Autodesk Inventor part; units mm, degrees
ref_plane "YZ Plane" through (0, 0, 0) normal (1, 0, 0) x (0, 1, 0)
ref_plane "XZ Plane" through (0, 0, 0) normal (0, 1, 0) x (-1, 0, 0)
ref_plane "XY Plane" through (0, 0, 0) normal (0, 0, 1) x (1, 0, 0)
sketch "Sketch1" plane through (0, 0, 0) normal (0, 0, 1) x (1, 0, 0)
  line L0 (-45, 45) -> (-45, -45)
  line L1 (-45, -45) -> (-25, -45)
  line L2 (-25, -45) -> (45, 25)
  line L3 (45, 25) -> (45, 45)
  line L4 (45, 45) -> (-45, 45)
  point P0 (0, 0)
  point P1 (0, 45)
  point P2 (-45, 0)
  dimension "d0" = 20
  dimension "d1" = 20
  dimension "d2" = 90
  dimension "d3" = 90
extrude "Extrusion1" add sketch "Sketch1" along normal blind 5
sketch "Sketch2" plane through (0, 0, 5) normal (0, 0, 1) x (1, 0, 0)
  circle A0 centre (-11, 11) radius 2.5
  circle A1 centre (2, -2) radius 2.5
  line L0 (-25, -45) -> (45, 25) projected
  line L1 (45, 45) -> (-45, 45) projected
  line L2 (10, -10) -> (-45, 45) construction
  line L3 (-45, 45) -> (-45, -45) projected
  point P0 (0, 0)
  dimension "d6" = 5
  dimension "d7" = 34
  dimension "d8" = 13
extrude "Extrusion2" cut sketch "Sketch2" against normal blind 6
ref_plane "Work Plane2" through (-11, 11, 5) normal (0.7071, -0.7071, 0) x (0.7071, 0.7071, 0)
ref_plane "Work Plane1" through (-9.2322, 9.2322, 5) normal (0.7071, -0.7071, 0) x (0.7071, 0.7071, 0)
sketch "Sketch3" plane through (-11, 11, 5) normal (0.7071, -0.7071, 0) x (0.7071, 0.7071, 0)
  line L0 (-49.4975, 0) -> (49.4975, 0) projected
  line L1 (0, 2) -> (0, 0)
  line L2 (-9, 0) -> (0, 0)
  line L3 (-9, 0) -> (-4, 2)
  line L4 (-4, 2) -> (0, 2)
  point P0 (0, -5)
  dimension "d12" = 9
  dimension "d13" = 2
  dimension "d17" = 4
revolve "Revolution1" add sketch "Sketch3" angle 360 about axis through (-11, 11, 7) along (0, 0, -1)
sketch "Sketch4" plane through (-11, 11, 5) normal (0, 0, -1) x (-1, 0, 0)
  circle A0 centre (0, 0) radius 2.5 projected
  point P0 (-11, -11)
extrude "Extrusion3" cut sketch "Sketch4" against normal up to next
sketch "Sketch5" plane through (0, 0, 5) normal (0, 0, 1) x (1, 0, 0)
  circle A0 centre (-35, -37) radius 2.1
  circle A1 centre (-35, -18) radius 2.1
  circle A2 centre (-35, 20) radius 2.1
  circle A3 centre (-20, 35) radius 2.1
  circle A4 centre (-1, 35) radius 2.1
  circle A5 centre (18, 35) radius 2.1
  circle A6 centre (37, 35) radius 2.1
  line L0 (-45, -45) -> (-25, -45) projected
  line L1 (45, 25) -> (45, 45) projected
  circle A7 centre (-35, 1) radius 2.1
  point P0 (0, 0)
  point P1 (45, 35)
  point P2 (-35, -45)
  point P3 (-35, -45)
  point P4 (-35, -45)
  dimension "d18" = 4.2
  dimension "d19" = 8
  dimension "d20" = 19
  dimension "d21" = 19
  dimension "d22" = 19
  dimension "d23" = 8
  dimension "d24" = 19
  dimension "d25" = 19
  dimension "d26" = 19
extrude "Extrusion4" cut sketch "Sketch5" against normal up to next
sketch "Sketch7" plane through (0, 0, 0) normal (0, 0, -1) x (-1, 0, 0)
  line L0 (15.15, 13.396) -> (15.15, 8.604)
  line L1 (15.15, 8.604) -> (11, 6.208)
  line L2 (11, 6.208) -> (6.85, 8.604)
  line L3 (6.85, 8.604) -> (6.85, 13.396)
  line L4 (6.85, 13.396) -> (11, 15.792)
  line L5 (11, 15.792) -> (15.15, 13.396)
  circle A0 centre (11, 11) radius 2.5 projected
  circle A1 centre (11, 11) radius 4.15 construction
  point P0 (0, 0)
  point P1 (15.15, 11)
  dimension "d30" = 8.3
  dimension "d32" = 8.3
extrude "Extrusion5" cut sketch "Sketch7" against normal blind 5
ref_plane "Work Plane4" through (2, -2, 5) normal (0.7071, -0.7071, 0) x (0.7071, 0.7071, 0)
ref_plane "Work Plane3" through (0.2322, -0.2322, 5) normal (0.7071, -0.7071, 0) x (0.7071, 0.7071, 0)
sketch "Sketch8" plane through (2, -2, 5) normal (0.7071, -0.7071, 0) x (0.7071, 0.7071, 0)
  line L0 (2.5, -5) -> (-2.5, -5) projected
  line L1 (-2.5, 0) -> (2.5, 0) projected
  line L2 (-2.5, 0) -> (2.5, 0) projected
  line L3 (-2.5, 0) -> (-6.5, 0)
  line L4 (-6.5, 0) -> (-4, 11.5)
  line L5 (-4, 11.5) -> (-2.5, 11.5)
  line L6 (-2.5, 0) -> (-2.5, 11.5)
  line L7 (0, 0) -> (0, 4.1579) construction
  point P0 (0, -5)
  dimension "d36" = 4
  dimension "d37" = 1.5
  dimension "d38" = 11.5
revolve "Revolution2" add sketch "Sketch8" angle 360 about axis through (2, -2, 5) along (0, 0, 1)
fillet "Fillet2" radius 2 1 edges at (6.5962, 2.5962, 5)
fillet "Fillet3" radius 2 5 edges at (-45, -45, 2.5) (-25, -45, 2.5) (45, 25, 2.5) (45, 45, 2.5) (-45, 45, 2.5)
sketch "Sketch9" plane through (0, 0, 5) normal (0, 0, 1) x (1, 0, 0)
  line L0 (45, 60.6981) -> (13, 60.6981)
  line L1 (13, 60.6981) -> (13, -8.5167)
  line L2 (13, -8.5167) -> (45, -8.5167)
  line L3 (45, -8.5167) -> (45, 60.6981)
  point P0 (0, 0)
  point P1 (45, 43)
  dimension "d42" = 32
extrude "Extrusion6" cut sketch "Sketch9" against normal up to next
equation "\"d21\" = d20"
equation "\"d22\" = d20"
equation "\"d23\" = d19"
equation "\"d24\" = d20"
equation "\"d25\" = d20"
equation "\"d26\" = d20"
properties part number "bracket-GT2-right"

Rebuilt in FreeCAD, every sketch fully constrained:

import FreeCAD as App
import Part
import Sketcher
from FreeCAD import Vector
Q = App.Units.Quantity


def edges_at(feature, points):
    """Names of the edges that pass closest to the given points."""
    edges = feature.Shape.Edges
    near = lambda p: min(range(len(edges)), key=lambda i: edges[i].distToShape(Part.Vertex(*p))[0])
    return sorted({f"Edge{near(p) + 1}" for p in points})


def add_polygon(sketch, points):
    """Adds a closed chain of lines whose ends are joined by coincident constraints."""
    first, n = sketch.GeometryCount, len(points)
    for a, b in zip(points, points[1:] + points[:1]):
        sketch.addGeometry(Part.LineSegment(App.Vector(*a, 0), App.Vector(*b, 0)), False)
    for i in range(n):
        sketch.addConstraint(Sketcher.Constraint("Coincident", first + i, 2, first + (i + 1) % n, 1))

doc = App.newDocument("Part")
body = doc.addObject("PartDesign::Body", "Body")

# Sketch on XY plane
sketch1 = body.newObject("Sketcher::SketchObject", "Sketch")
sketch1.AttachmentSupport = (doc.getObject("XY_Plane"), [""])
sketch1.MapMode = "FlatFace"
add_polygon(sketch1, [(45, 45), (-45, 45), (-45, -45), (-25, -45), (45, 25)])  # lines 0-4
sketch1.addConstraint([
    Sketcher.Constraint("Horizontal", 0),
    Sketcher.Constraint("Vertical", 1),
    Sketcher.Constraint("Horizontal", 2),
    Sketcher.Constraint("Vertical", 4),
    Sketcher.Constraint("Symmetric", 1, 2, 4, 2, -1, 1),
    Sketcher.Constraint("Equal", 0, 1),
    Sketcher.Constraint("Equal", 2, 4),
    Sketcher.Constraint("DistanceX", 0, 2, 0, 1, Q("90 mm")),
    Sketcher.Constraint("DistanceX", 2, 1, 2, 2, Q("20 mm")),
])
pad1 = body.newObject("PartDesign::Pad", "Pad")
pad1.Profile = sketch1
pad1.Length = 5

# Sketch on XY plane
sketch2 = body.newObject("Sketcher::SketchObject", "Sketch001")
sketch2.AttachmentSupport = (doc.getObject("XY_Plane"), [""])
sketch2.MapMode = "FlatFace"
sketch2.AttachmentOffset = App.Placement(Vector(0, 0, 5), App.Rotation())
sketch2.addGeometry([
    Part.Circle(Vector(-11, 11, 0), Vector(0, 0, 1), 2.5),
    Part.Circle(Vector(2, -2, 0), Vector(0, 0, 1), 2.5),
], False)
sketch2.addConstraint([
    Sketcher.Constraint("Equal", 0, 1),
    Sketcher.Constraint("Diameter", 0, Q("5 mm")),
    Sketcher.Constraint("DistanceX", 0, 3, 1, 3, Q("13 mm")),
    Sketcher.Constraint("DistanceY", 1, 3, 0, 3, Q("13 mm")),
    Sketcher.Constraint("DistanceX", 0, 3, -1, 1, Q("11 mm")),
    Sketcher.Constraint("DistanceY", -1, 1, 0, 3, Q("11 mm")),
])
pocket1 = body.newObject("PartDesign::Pocket", "Pocket")
pocket1.Profile = sketch2
pocket1.Length = 6

# Sketch on an angled plane
sketch3 = body.newObject("Sketcher::SketchObject", "Sketch002")
sketch3.Placement = App.Placement(Vector(-11, 11, 5), App.Rotation(Vector(0.707106781, 0.707106781, 0), Vector(0, 0, 0.999999999), Vector(0.707106781, -0.707106781, 0), "ZXY"))
add_polygon(sketch3, [(-4, 2), (-9, 0), (0, 0), (0, 2)])  # lines 0-3
sketch3.addConstraint([
    Sketcher.Constraint("Horizontal", 1),
    Sketcher.Constraint("Vertical", 2),
    Sketcher.Constraint("Horizontal", 3),
    Sketcher.Constraint("Coincident", 1, 2, -1, 1),
    Sketcher.Constraint("DistanceX", 1, 1, 1, 2, Q("9 mm")),
    Sketcher.Constraint("DistanceX", 3, 2, 3, 1, Q("4 mm")),
    Sketcher.Constraint("DistanceY", 2, 1, 2, 2, Q("2 mm")),
])
revolution = body.newObject("PartDesign::Revolution", "Revolution")
revolution.Profile = sketch3
revolution.ReferenceAxis = (sketch3, ["V_Axis"])
revolution.Angle = 360

# Sketch on XY plane
sketch4 = body.newObject("Sketcher::SketchObject", "Sketch003")
sketch4.AttachmentSupport = (doc.getObject("XY_Plane"), [""])
sketch4.MapMode = "FlatFace"
sketch4.AttachmentOffset = App.Placement(Vector(0, 0, 5), App.Rotation())
sketch4.addGeometry(Part.Circle(Vector(-11, 11, 0), Vector(0, 0, 1), 2.5), False)
sketch4.addConstraint([
    Sketcher.Constraint("Diameter", 0, Q("5 mm")),
    Sketcher.Constraint("DistanceX", 0, 3, -1, 1, Q("11 mm")),
    Sketcher.Constraint("DistanceY", -1, 1, 0, 3, Q("11 mm")),
])
pocket2 = body.newObject("PartDesign::Pocket", "Pocket001")
pocket2.Profile = sketch4
pocket2.Type = "UpToFirst"
pocket2.Reversed = True

# Sketch on XY plane
sketch5 = body.newObject("Sketcher::SketchObject", "Sketch004")
sketch5.AttachmentSupport = (doc.getObject("XY_Plane"), [""])
sketch5.MapMode = "FlatFace"
sketch5.AttachmentOffset = App.Placement(Vector(0, 0, 5), App.Rotation())
sketch5.addGeometry([
    Part.Circle(Vector(-35, -37, 0), Vector(0, 0, 1), 2.1),  # 0
    Part.Circle(Vector(-35, -18, 0), Vector(0, 0, 1), 2.1),  # 1
    Part.Circle(Vector(-35, 20, 0), Vector(0, 0, 1), 2.1),  # 2
    Part.Circle(Vector(-20, 35, 0), Vector(0, 0, 1), 2.1),  # 3
    Part.Circle(Vector(-1, 35, 0), Vector(0, 0, 1), 2.1),  # 4
    Part.Circle(Vector(18, 35, 0), Vector(0, 0, 1), 2.1),  # 5
    Part.Circle(Vector(37, 35, 0), Vector(0, 0, 1), 2.1),  # 6
    Part.Circle(Vector(-35, 1, 0), Vector(0, 0, 1), 2.1),  # 7
], False)
sketch5.addConstraint([
    Sketcher.Constraint("Equal", 0, 1),
    Sketcher.Constraint("Equal", 1, 2),
    Sketcher.Constraint("Equal", 2, 3),
    Sketcher.Constraint("Equal", 3, 4),
    Sketcher.Constraint("Equal", 4, 5),
    Sketcher.Constraint("Equal", 5, 6),
    Sketcher.Constraint("Equal", 6, 7),
    Sketcher.Constraint("Horizontal", 3, 3, 4, 3),
    Sketcher.Constraint("Horizontal", 4, 3, 5, 3),
    Sketcher.Constraint("Horizontal", 5, 3, 6, 3),
    Sketcher.Constraint("Vertical", 0, 3, 1, 3),
    Sketcher.Constraint("Vertical", 1, 3, 2, 3),
    Sketcher.Constraint("Vertical", 2, 3, 7, 3),
    Sketcher.Constraint("Diameter", 0, Q("4.2 mm")),
    Sketcher.Constraint("DistanceY", 0, 3, 1, 3, Q("19 mm")),
    Sketcher.Constraint("DistanceX", 3, 3, 4, 3, Q("19 mm")),
    Sketcher.Constraint("DistanceX", 4, 3, 5, 3, Q("19 mm")),
    Sketcher.Constraint("DistanceX", 5, 3, 6, 3, Q("19 mm")),
    Sketcher.Constraint("DistanceY", 1, 3, 7, 3, Q("19 mm")),
    Sketcher.Constraint("DistanceY", 7, 3, 2, 3, Q("19 mm")),
    Sketcher.Constraint("DistanceX", 0, 3, -1, 1, Q("35 mm")),
    Sketcher.Constraint("DistanceY", 0, 3, -1, 1, Q("37 mm")),
    Sketcher.Constraint("DistanceX", 3, 3, -1, 1, Q("20 mm")),
    Sketcher.Constraint("DistanceY", -1, 1, 3, 3, Q("35 mm")),
])
pocket3 = body.newObject("PartDesign::Pocket", "Pocket002")
pocket3.Profile = sketch5
pocket3.Type = "UpToFirst"

# Sketch on XY plane
sketch6 = body.newObject("Sketcher::SketchObject", "Sketch005")
sketch6.AttachmentSupport = (doc.getObject("XY_Plane"), [""])
sketch6.MapMode = "FlatFace"
add_polygon(sketch6, [(-15.2, 8.6), (-15.2, 13.4), (-11, 15.8), (-6.8, 13.4), (-6.8, 8.6), (-11, 6.2)])  # lines 0-5
sketch6.addGeometry(Part.Circle(Vector(-11, 11, 0), Vector(0, 0, 1), 2.5), False)  # 6
sketch6.addConstraint([
    Sketcher.Constraint("Vertical", 0),
    Sketcher.Constraint("Vertical", 3),
    Sketcher.Constraint("Parallel", 1, 4),
    Sketcher.Constraint("Parallel", 2, 5),
    Sketcher.Constraint("Horizontal", 0, 2, 2, 2),
    Sketcher.Constraint("Horizontal", 3, 2, 5, 2),
    Sketcher.Constraint("Vertical", 6, 3, 1, 2),
    Sketcher.Constraint("Vertical", 1, 2, 4, 2),
    Sketcher.Constraint("Diameter", 6, Q("5 mm")),
    Sketcher.Constraint("DistanceX", 0, 2, 2, 2, Q("8.3 mm")),
    Sketcher.Constraint("Angle", 1, Q("30 deg")),
    Sketcher.Constraint("DistanceX", 6, 3, -1, 1, Q("11 mm")),
    Sketcher.Constraint("DistanceY", -1, 1, 6, 3, Q("11 mm")),
    Sketcher.Constraint("DistanceY", 0, 1, 0, 2, Q("4.792 mm")),
    Sketcher.Constraint("DistanceY", -1, 1, 0, 2, Q("13.396 mm")),
])
pocket4 = body.newObject("PartDesign::Pocket", "Pocket003")
pocket4.Profile = sketch6
pocket4.Length = 5
pocket4.Reversed = True

# Sketch on an angled plane
sketch7 = body.newObject("Sketcher::SketchObject", "Sketch006")
sketch7.Placement = App.Placement(Vector(2, -2, 5), App.Rotation(Vector(0.707106781, 0.707106781, 0), Vector(0, 0, 0.999999999), Vector(0.707106781, -0.707106781, 0), "ZXY"))
add_polygon(sketch7, [(-6.5, 0), (-2.5, 0), (-2.5, 11.5), (-4, 11.5)])  # lines 0-3
sketch7.addConstraint([
    Sketcher.Constraint("Horizontal", 0),
    Sketcher.Constraint("Vertical", 1),
    Sketcher.Constraint("Horizontal", 2),
    Sketcher.Constraint("PointOnObject", 0, 2, -1),
    Sketcher.Constraint("DistanceX", 0, 1, 0, 2, Q("4 mm")),
    Sketcher.Constraint("DistanceX", 2, 2, 2, 1, Q("1.5 mm")),
    Sketcher.Constraint("DistanceY", 1, 1, 1, 2, Q("11.5 mm")),
    Sketcher.Constraint("DistanceX", 2, 2, -1, 1, Q("4 mm")),
])
revolution2 = body.newObject("PartDesign::Revolution", "Revolution001")
revolution2.Profile = sketch7
revolution2.ReferenceAxis = (sketch7, ["V_Axis"])
revolution2.Angle = 360
doc.recompute()

fillet = body.newObject("PartDesign::Fillet", "Fillet")
fillet.Base = (revolution2, edges_at(revolution2, [(6.596, 2.596, 5)]))
fillet.Radius = 2
doc.recompute()

fillet2 = body.newObject("PartDesign::Fillet", "Fillet001")
fillet2.Base = (fillet, edges_at(fillet, [
    (-45, -45, 2.5),
    (-25, -45, 2.5),
    (45, 25, 2.5),
    (45, 45, 2.5),
    (-45, 45, 2.5),
]))
fillet2.Radius = 2

# Sketch on XY plane
sketch8 = body.newObject("Sketcher::SketchObject", "Sketch007")
sketch8.AttachmentSupport = (doc.getObject("XY_Plane"), [""])
sketch8.MapMode = "FlatFace"
sketch8.AttachmentOffset = App.Placement(Vector(0, 0, 5), App.Rotation())
add_polygon(sketch8, [(45, -9), (45, 61), (13, 61), (13, -9)])  # lines 0-3
sketch8.addConstraint([
    Sketcher.Constraint("Vertical", 0),
    Sketcher.Constraint("Horizontal", 1),
    Sketcher.Constraint("Vertical", 2),
    Sketcher.Constraint("Horizontal", 3),
    Sketcher.Constraint("DistanceX", 1, 2, 1, 1, Q("32 mm")),
    Sketcher.Constraint("DistanceX", -1, 1, 0, 2, Q("45 mm")),
    Sketcher.Constraint("DistanceY", 0, 1, 0, 2, Q("69.2148 mm")),
    Sketcher.Constraint("DistanceY", -1, 1, 0, 2, Q("60.698 mm")),
])
pocket5 = body.newObject("PartDesign::Pocket", "Pocket004")
pocket5.Profile = sketch8
pocket5.Type = "UpToFirst"

doc.recompute()
